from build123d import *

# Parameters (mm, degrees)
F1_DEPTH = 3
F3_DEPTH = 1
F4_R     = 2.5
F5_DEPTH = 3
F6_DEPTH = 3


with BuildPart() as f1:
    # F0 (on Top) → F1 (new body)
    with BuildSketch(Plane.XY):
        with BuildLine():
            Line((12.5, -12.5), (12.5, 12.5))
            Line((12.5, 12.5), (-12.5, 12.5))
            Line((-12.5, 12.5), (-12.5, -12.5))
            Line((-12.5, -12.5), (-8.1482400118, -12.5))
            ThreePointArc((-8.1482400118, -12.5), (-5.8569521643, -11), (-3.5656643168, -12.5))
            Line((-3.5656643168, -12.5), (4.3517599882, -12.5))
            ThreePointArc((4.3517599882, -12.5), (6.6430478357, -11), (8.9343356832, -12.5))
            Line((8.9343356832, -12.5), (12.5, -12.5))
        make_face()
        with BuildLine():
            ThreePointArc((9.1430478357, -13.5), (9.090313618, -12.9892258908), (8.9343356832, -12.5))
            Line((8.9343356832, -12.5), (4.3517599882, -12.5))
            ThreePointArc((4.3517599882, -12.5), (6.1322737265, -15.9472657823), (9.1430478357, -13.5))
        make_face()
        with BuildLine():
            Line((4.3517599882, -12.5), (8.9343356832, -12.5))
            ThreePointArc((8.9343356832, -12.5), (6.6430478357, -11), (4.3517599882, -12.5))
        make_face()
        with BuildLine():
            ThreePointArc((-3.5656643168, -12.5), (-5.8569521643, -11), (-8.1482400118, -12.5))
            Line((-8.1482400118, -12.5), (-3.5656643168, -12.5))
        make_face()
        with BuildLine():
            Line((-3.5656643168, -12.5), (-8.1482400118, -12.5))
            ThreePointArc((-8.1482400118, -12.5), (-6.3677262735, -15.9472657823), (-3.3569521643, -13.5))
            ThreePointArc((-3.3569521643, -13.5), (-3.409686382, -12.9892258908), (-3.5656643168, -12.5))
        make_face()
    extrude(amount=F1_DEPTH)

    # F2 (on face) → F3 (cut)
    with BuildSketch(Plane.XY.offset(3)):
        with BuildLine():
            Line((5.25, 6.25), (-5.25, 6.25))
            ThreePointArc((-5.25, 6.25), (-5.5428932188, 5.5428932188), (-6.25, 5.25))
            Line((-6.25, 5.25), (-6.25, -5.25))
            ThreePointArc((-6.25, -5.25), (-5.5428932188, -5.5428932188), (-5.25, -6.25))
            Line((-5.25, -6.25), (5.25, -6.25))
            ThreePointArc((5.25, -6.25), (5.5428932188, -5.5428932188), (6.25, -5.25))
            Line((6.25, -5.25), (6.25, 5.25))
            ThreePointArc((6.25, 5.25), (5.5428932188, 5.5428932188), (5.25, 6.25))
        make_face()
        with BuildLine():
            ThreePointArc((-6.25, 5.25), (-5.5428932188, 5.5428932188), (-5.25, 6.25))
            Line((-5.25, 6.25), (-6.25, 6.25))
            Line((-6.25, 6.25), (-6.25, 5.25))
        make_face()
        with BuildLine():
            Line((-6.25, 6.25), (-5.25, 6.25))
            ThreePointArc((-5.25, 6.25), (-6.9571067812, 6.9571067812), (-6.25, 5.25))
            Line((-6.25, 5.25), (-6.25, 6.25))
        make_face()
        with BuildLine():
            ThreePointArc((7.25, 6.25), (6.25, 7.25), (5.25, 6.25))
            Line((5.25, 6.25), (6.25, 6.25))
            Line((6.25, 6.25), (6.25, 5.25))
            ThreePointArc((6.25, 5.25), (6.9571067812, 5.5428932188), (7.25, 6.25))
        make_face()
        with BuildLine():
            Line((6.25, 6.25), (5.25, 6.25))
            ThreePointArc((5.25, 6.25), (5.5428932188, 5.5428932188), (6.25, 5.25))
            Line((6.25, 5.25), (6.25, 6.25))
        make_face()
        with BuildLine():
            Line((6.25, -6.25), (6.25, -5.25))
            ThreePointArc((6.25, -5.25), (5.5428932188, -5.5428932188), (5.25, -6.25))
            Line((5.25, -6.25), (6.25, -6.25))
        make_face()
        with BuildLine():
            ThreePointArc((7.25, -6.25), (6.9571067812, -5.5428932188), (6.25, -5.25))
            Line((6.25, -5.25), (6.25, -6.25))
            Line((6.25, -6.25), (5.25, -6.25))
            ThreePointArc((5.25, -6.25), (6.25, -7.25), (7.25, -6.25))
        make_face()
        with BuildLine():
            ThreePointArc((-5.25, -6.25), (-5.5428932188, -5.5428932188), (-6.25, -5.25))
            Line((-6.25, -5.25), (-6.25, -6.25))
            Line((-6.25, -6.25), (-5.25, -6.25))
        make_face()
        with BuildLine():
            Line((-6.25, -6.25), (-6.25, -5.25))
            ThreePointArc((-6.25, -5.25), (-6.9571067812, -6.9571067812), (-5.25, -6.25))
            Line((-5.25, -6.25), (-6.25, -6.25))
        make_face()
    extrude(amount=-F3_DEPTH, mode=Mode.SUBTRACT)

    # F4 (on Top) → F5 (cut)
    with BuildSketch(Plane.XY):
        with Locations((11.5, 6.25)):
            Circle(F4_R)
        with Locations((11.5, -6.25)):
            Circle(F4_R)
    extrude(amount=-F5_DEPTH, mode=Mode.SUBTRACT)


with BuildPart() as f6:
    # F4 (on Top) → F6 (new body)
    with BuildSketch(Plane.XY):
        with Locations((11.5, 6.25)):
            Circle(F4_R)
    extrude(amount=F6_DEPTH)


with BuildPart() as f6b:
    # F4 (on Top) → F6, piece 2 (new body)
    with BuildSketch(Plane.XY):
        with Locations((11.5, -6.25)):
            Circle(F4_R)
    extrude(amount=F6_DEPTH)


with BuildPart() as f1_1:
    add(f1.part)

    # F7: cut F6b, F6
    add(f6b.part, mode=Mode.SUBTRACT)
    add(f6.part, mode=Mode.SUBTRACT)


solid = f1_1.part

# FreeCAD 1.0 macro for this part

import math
import FreeCAD as App
import Part
import Sketcher
from FreeCAD import Vector
Q = App.Units.Quantity

doc = App.newDocument("Part")
body = doc.addObject("PartDesign::Body", "Body")

# Sketch on XY plane
sketch1 = doc.addObject("Sketcher::SketchObject", "Sketch")
body.addObject(sketch1)
sketch1.AttachmentSupport = (doc.XY_Plane, [""])
sketch1.MapMode = "FlatFace"
sketch1.addGeometry([
    Part.LineSegment(Vector(12.5, -12.5, 0), Vector(12.5, 12.5, 0)),  # 0
    Part.LineSegment(Vector(12.5, 12.5, 0), Vector(-12.5, 12.5, 0)),  # 1
    Part.LineSegment(Vector(-12.5, 12.5, 0), Vector(-12.5, -12.5, 0)),  # 2
    Part.LineSegment(Vector(-12.5, -12.5, 0), Vector(-8.1, -12.5, 0)),  # 3
    Part.ArcOfCircle(Part.Circle(Vector(-5.9, -13.5, 0), Vector(0, 0, 1), 2.5), math.radians(156), math.radians(360)),  # 4
    Part.ArcOfCircle(Part.Circle(Vector(-5.9, -13.5, 0), Vector(0, 0, 1), 2.5), math.radians(0), math.radians(24)),  # 5
    Part.LineSegment(Vector(-3.6, -12.5, 0), Vector(4.4, -12.5, 0)),  # 6
    Part.ArcOfCircle(Part.Circle(Vector(6.6, -13.5, 0), Vector(0, 0, 1), 2.5), math.radians(156), math.radians(360)),  # 7
    Part.ArcOfCircle(Part.Circle(Vector(6.6, -13.5, 0), Vector(0, 0, 1), 2.5), math.radians(0), math.radians(24)),  # 8
    Part.LineSegment(Vector(8.9, -12.5, 0), Vector(12.5, -12.5, 0)),  # 9
], False)
sketch1.addConstraint([
    Sketcher.Constraint("Coincident", 0, 2, 1, 1),
    Sketcher.Constraint("Coincident", 1, 2, 2, 1),
    Sketcher.Constraint("Coincident", 2, 2, 3, 1),
    Sketcher.Constraint("Coincident", 3, 2, 4, 1),
    Sketcher.Constraint("Tangent", 4, 2, 5, 1),
    Sketcher.Constraint("Coincident", 5, 2, 6, 1),
    Sketcher.Constraint("Coincident", 6, 2, 7, 1),
    Sketcher.Constraint("Tangent", 7, 2, 8, 1),
    Sketcher.Constraint("Coincident", 8, 2, 9, 1),
    Sketcher.Constraint("Coincident", 9, 2, 0, 1),
    Sketcher.Constraint("Vertical", 0),
    Sketcher.Constraint("Horizontal", 1),
    Sketcher.Constraint("Vertical", 2),
    Sketcher.Constraint("Horizontal", 3),
    Sketcher.Constraint("Horizontal", 6),
    Sketcher.Constraint("Horizontal", 9),
    Sketcher.Constraint("Equal", 4, 5),
    Sketcher.Constraint("Equal", 5, 7),
    Sketcher.Constraint("Equal", 7, 8),
    Sketcher.Constraint("Symmetric", 0, 2, 2, 2, -1, 1),
    Sketcher.Constraint("Horizontal", 5, 3, 7, 3),
    Sketcher.Constraint("Horizontal", 8, 3, 4, 2),
    Sketcher.Constraint("Horizontal", 3, 2, 5, 2),
    Sketcher.Constraint("Horizontal", 4, 2, 7, 2),
    Sketcher.Constraint("Horizontal", 6, 2, 8, 2),
    Sketcher.Constraint("Equal", 1, 0),
    Sketcher.Constraint("Radius", 4, Q("2.5 mm")),
    Sketcher.Constraint("DistanceX", 1, 2, 1, 1, Q("25 mm")),
    Sketcher.Constraint("DistanceY", 7, 3, 0, 2, Q("26 mm")),
    Sketcher.Constraint("DistanceX", 4, 2, 8, 3, Q("10 mm")),
    Sketcher.Constraint("DistanceX", 3, 1, 3, 2, Q("4.35176 mm")),
])
pad1 = doc.addObject("PartDesign::Pad", "Pad")
body.addObject(pad1)
pad1.Profile = sketch1
pad1.Length = 3

# Sketch on XY plane
sketch2 = doc.addObject("Sketcher::SketchObject", "Sketch001")
body.addObject(sketch2)
sketch2.AttachmentSupport = (doc.XY_Plane, [""])
sketch2.MapMode = "FlatFace"
sketch2.AttachmentOffset = App.Placement(Vector(0, 0, 3), App.Rotation())
sketch2.addGeometry([
    Part.LineSegment(Vector(5.2, 6.2, 0), Vector(-5.2, 6.2, 0)),  # 0
    Part.ArcOfCircle(Part.Circle(Vector(-6.2, 6.2, 0), Vector(0, 0, 1), 1), math.radians(0), math.radians(270)),  # 1
    Part.LineSegment(Vector(-6.2, 5.2, 0), Vector(-6.2, -5.2, 0)),  # 2
    Part.ArcOfCircle(Part.Circle(Vector(-6.2, -6.2, 0), Vector(0, 0, 1), 1), math.radians(90), math.radians(360)),  # 3
    Part.LineSegment(Vector(-5.2, -6.2, 0), Vector(5.2, -6.2, 0)),  # 4
    Part.ArcOfCircle(Part.Circle(Vector(6.2, -6.2, 0), Vector(0, 0, 1), 1), math.radians(180), math.radians(360)),  # 5
    Part.ArcOfCircle(Part.Circle(Vector(6.2, -6.2, 0), Vector(0, 0, 1), 1), math.radians(0), math.radians(90)),  # 6
    Part.LineSegment(Vector(6.2, -5.2, 0), Vector(6.2, 5.2, 0)),  # 7
    Part.ArcOfCircle(Part.Circle(Vector(6.2, 6.2, 0), Vector(0, 0, 1), 1), math.radians(-90), math.radians(0)),  # 8
    Part.ArcOfCircle(Part.Circle(Vector(6.2, 6.2, 0), Vector(0, 0, 1), 1), math.radians(0), math.radians(180)),  # 9
], False)
sketch2.addConstraint([
    Sketcher.Constraint("Coincident", 0, 2, 1, 1),
    Sketcher.Constraint("Coincident", 1, 2, 2, 1),
    Sketcher.Constraint("Coincident", 2, 2, 3, 1),
    Sketcher.Constraint("Coincident", 3, 2, 4, 1),
    Sketcher.Constraint("Coincident", 4, 2, 5, 1),
    Sketcher.Constraint("Tangent", 5, 2, 6, 1),
    Sketcher.Constraint("Coincident", 6, 2, 7, 1),
    Sketcher.Constraint("Coincident", 7, 2, 8, 1),
    Sketcher.Constraint("Tangent", 8, 2, 9, 1),
    Sketcher.Constraint("Coincident", 9, 2, 0, 1),
    Sketcher.Constraint("Horizontal", 0),
    Sketcher.Constraint("Vertical", 2),
    Sketcher.Constraint("Horizontal", 4),
    Sketcher.Constraint("Vertical", 7),
    Sketcher.Constraint("Equal", 1, 3),
    Sketcher.Constraint("Equal", 3, 5),
    Sketcher.Constraint("Equal", 5, 6),
    Sketcher.Constraint("Equal", 6, 8),
    Sketcher.Constraint("Equal", 8, 9),
    Sketcher.Constraint("Symmetric", 1, 3, 5, 3, -1, 1),
    Sketcher.Constraint("Symmetric", 3, 3, 8, 3, -1, 1),
    Sketcher.Constraint("Symmetric", 3, 3, 5, 3, -2),
    Sketcher.Constraint("Horizontal", 9, 3, 0, 2),
    Sketcher.Constraint("Horizontal", 6, 3, 3, 2),
    Sketcher.Constraint("Horizontal", 4, 2, 5, 2),
    Sketcher.Constraint("Horizontal", 0, 2, 8, 2),
    Sketcher.Constraint("Vertical", 3, 3, 1, 2),
    Sketcher.Constraint("Vertical", 9, 3, 6, 2),
    Sketcher.Constraint("Equal", 4, 2),
    Sketcher.Constraint("Radius", 1, Q("1 mm")),
    Sketcher.Constraint("DistanceX", 0, 2, 0, 1, Q("10.5 mm")),
])
pocket1 = doc.addObject("PartDesign::Pocket", "Pocket")
body.addObject(pocket1)
pocket1.Profile = sketch2
pocket1.Length = 1

# Sketch on XY plane
sketch3 = doc.addObject("Sketcher::SketchObject", "Sketch002")
body.addObject(sketch3)
sketch3.AttachmentSupport = (doc.XY_Plane, [""])
sketch3.MapMode = "FlatFace"
sketch3.addGeometry([
    Part.Circle(Vector(11.5, 6.2, 0), Vector(0, 0, 1), 2.5),
    Part.Circle(Vector(11.5, -6.2, 0), Vector(0, 0, 1), 2.5),
], False)
sketch3.addConstraint([
    Sketcher.Constraint("Equal", 0, 1),
    Sketcher.Constraint("Symmetric", 0, 3, 1, 3, -1),
    Sketcher.Constraint("Diameter", 0, Q("5 mm")),
    Sketcher.Constraint("DistanceX", -1, 1, 0, 3, Q("11.5 mm")),
    Sketcher.Constraint("DistanceY", 1, 3, 0, 3, Q("12.5 mm")),
])
pocket2 = doc.addObject("PartDesign::Pocket", "Pocket001")
body.addObject(pocket2)
pocket2.Profile = sketch3
pocket2.Length = 3
body2 = doc.addObject("PartDesign::Body", "Body001")

# Sketch on XY plane
sketch4 = doc.addObject("Sketcher::SketchObject", "Sketch003")
body2.addObject(sketch4)
sketch4.AttachmentSupport = (doc.getObject("XY_Plane001"), [""])
sketch4.MapMode = "FlatFace"
sketch4.addGeometry(Part.Circle(Vector(11.5, 6.2, 0), Vector(0, 0, 1), 2.5), False)
sketch4.addConstraint([
    Sketcher.Constraint("Diameter", 0, Q("5 mm")),
    Sketcher.Constraint("DistanceX", -1, 1, 0, 3, Q("11.5 mm")),
    Sketcher.Constraint("DistanceY", -1, 1, 0, 3, Q("6.25 mm")),
])
pad2 = doc.addObject("PartDesign::Pad", "Pad001")
body2.addObject(pad2)
pad2.Profile = sketch4
pad2.Length = 3
body3 = doc.addObject("PartDesign::Body", "Body002")

# Sketch on XY plane
sketch5 = doc.addObject("Sketcher::SketchObject", "Sketch004")
body3.addObject(sketch5)
sketch5.AttachmentSupport = (doc.getObject("XY_Plane002"), [""])
sketch5.MapMode = "FlatFace"
sketch5.addGeometry(Part.Circle(Vector(11.5, -6.2, 0), Vector(0, 0, 1), 2.5), False)
sketch5.addConstraint([
    Sketcher.Constraint("Diameter", 0, Q("5 mm")),
    Sketcher.Constraint("DistanceX", -1, 1, 0, 3, Q("11.5 mm")),
    Sketcher.Constraint("DistanceY", 0, 3, -1, 1, Q("6.25 mm")),
])
pad3 = doc.addObject("PartDesign::Pad", "Pad002")
body3.addObject(pad3)
pad3.Profile = sketch5
pad3.Length = 3
doc.recompute()

boolean = doc.addObject("PartDesign::Boolean", "Boolean")
body.addObject(boolean)
boolean.Type = "Cut"
boolean.addObjects([body3])
doc.recompute()

boolean2 = doc.addObject("PartDesign::Boolean", "Boolean001")
body.addObject(boolean2)
boolean2.Type = "Cut"
boolean2.addObjects([body2])

doc.recompute()
